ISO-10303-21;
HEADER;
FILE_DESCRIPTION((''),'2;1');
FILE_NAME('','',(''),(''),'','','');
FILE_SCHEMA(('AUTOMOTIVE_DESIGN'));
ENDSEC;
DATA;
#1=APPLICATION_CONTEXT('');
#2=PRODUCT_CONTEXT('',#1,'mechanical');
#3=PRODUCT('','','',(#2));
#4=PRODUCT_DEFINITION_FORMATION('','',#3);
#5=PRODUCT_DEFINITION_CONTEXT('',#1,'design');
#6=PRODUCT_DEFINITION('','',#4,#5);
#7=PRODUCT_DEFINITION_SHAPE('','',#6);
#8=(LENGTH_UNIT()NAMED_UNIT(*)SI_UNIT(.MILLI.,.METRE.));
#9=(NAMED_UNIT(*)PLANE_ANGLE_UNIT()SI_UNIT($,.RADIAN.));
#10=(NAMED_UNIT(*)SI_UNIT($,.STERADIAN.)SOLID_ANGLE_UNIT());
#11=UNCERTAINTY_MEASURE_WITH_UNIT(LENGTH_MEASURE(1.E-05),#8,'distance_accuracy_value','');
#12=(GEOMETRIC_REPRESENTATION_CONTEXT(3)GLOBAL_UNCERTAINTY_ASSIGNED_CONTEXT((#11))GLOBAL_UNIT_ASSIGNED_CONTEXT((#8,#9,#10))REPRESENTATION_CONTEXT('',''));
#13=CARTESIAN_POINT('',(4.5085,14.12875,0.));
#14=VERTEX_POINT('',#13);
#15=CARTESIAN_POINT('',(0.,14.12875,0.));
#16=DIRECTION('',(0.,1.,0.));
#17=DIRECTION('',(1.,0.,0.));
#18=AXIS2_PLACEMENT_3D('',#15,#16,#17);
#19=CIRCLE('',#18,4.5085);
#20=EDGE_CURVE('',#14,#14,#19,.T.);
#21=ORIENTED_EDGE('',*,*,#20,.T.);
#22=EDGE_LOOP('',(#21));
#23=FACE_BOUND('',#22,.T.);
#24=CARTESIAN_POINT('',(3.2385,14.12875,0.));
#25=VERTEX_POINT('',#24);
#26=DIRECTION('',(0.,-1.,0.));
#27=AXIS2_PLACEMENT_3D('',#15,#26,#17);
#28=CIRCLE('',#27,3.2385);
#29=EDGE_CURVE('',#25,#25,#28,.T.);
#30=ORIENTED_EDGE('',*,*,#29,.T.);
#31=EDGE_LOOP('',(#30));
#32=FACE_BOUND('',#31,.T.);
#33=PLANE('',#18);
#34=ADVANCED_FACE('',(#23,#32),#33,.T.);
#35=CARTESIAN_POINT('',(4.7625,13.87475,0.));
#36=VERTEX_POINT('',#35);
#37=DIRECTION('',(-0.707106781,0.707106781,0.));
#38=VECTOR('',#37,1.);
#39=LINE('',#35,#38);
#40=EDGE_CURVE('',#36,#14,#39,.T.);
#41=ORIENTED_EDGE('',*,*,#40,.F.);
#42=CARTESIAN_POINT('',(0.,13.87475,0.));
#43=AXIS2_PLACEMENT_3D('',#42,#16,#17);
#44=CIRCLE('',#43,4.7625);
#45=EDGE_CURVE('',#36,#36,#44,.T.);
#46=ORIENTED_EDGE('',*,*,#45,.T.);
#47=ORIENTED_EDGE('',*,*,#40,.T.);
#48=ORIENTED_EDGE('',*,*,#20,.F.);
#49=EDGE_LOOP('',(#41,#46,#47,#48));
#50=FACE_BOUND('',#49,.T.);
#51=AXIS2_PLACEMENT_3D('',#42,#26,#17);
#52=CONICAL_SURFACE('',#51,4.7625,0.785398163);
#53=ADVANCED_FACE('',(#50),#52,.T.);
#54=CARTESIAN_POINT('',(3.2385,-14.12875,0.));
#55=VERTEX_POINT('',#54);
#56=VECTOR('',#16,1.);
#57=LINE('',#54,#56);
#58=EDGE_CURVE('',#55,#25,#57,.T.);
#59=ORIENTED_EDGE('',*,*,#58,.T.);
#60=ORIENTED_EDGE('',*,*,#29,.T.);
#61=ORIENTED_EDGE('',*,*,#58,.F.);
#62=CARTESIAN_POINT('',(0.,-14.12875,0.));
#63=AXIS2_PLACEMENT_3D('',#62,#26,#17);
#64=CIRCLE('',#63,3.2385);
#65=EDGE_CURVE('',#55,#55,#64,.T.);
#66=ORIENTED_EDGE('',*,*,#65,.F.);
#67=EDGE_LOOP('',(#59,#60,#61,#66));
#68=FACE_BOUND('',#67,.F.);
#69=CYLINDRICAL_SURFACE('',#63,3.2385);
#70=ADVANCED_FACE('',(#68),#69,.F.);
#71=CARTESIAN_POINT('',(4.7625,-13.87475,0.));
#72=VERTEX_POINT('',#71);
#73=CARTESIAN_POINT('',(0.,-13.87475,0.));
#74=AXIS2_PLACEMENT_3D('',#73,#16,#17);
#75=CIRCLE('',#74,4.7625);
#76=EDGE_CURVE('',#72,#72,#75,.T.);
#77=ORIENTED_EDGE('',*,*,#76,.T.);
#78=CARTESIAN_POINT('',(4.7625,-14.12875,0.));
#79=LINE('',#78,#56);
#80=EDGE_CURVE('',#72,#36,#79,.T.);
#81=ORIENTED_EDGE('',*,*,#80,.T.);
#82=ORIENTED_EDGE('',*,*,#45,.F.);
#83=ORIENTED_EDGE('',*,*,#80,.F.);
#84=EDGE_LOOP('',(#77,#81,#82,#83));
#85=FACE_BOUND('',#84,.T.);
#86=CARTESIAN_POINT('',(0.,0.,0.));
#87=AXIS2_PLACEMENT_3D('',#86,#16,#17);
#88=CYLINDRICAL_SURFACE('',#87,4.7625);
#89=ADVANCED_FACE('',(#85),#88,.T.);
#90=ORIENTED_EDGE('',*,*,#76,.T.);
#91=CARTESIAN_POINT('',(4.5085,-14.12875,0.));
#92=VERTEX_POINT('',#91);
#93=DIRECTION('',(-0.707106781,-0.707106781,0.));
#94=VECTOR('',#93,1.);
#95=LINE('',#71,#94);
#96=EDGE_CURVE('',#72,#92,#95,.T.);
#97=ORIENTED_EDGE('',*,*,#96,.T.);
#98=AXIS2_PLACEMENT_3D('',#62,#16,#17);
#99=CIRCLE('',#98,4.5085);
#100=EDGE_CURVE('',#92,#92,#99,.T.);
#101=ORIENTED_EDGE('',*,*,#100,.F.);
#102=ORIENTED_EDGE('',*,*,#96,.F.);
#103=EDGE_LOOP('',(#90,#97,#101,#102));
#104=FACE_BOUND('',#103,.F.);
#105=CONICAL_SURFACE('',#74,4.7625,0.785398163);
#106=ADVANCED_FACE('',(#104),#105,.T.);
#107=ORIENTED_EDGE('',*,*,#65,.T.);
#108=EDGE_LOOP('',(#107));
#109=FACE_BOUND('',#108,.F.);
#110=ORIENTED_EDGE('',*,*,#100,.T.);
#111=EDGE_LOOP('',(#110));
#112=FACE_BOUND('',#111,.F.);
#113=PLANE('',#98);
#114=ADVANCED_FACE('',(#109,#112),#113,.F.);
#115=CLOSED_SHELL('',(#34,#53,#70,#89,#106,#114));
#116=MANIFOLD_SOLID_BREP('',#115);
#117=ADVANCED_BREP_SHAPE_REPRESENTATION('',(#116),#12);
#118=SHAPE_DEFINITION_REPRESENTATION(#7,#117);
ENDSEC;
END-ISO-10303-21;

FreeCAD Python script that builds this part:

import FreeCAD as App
import Part
import Sketcher
Q = App.Units.Quantity


def edges_at(feature, points):
    """Names of the edges that pass closest to the given points."""
    edges = feature.Shape.Edges
    near = lambda p: min(range(len(edges)), key=lambda i: edges[i].distToShape(Part.Vertex(*p))[0])
    return sorted({f"Edge{near(p) + 1}" for p in points})

doc = App.newDocument("Part")
params = doc.addObject("Spreadsheet::Sheet", "Params")
for row, (alias, value) in enumerate([
    ("sketch1_diameter", "0.375 in"),
    ("pad1_length", "1.1125 in"),
    ("chamfer_size", "0.01 in"),
    ("sketch2_diameter", "0.255 in"),
], start=1):
    params.set(f"A{row}", alias)
    params.set(f"B{row}", "=" + value)
    params.setAlias(f"B{row}", alias)

body = doc.addObject("PartDesign::Body", "Body")

# Sketch on XZ plane
sketch1 = doc.addObject("Sketcher::SketchObject", "Sketch")
body.addObject(sketch1)
sketch1.AttachmentSupport = (doc.XZ_Plane, [""])
sketch1.MapMode = "FlatFace"
sketch1.addGeometry(Part.Circle(App.Vector(0, 0, 0), App.Vector(0, 0, 1), 4.7625), False)
sketch1.addConstraint([
    Sketcher.Constraint("Coincident", 0, 3, -1, 1),
    Sketcher.Constraint("Diameter", 0, Q("0.375 in")),
])
sketch1.setExpression("Constraints[1]", "Params.sketch1_diameter")
pad1 = doc.addObject("PartDesign::Pad", "Pad")
body.addObject(pad1)
pad1.Profile = sketch1
pad1.setExpression("Length", "Params.pad1_length")
pad1.Midplane = True
doc.recompute()

chamfer = doc.addObject("PartDesign::Chamfer", "Chamfer")
body.addObject(chamfer)
chamfer.Base = (pad1, edges_at(pad1, [(-4.763, -14.129, 0), (-4.763, 14.129, 0)]))
chamfer.setExpression("Size", "Params.chamfer_size")

# Sketch on XZ plane
sketch2 = doc.addObject("Sketcher::SketchObject", "Sketch001")
body.addObject(sketch2)
sketch2.AttachmentSupport = (doc.XZ_Plane, [""])
sketch2.MapMode = "FlatFace"
sketch2.AttachmentOffset = App.Placement(App.Vector(0, 0, 14.12875), App.Rotation())
sketch2.addGeometry(Part.Circle(App.Vector(0, 0, 0), App.Vector(0, 0, 1), 3.2385), False)
sketch2.addConstraint([
    Sketcher.Constraint("Coincident", 0, 3, -1, 1),
    Sketcher.Constraint("Diameter", 0, Q("0.255 in")),
])
sketch2.setExpression("Constraints[1]", "Params.sketch2_diameter")
pocket1 = doc.addObject("PartDesign::Pocket", "Pocket")
body.addObject(pocket1)
pocket1.Profile = sketch2
pocket1.Type = "ThroughAll"

doc.recompute()
